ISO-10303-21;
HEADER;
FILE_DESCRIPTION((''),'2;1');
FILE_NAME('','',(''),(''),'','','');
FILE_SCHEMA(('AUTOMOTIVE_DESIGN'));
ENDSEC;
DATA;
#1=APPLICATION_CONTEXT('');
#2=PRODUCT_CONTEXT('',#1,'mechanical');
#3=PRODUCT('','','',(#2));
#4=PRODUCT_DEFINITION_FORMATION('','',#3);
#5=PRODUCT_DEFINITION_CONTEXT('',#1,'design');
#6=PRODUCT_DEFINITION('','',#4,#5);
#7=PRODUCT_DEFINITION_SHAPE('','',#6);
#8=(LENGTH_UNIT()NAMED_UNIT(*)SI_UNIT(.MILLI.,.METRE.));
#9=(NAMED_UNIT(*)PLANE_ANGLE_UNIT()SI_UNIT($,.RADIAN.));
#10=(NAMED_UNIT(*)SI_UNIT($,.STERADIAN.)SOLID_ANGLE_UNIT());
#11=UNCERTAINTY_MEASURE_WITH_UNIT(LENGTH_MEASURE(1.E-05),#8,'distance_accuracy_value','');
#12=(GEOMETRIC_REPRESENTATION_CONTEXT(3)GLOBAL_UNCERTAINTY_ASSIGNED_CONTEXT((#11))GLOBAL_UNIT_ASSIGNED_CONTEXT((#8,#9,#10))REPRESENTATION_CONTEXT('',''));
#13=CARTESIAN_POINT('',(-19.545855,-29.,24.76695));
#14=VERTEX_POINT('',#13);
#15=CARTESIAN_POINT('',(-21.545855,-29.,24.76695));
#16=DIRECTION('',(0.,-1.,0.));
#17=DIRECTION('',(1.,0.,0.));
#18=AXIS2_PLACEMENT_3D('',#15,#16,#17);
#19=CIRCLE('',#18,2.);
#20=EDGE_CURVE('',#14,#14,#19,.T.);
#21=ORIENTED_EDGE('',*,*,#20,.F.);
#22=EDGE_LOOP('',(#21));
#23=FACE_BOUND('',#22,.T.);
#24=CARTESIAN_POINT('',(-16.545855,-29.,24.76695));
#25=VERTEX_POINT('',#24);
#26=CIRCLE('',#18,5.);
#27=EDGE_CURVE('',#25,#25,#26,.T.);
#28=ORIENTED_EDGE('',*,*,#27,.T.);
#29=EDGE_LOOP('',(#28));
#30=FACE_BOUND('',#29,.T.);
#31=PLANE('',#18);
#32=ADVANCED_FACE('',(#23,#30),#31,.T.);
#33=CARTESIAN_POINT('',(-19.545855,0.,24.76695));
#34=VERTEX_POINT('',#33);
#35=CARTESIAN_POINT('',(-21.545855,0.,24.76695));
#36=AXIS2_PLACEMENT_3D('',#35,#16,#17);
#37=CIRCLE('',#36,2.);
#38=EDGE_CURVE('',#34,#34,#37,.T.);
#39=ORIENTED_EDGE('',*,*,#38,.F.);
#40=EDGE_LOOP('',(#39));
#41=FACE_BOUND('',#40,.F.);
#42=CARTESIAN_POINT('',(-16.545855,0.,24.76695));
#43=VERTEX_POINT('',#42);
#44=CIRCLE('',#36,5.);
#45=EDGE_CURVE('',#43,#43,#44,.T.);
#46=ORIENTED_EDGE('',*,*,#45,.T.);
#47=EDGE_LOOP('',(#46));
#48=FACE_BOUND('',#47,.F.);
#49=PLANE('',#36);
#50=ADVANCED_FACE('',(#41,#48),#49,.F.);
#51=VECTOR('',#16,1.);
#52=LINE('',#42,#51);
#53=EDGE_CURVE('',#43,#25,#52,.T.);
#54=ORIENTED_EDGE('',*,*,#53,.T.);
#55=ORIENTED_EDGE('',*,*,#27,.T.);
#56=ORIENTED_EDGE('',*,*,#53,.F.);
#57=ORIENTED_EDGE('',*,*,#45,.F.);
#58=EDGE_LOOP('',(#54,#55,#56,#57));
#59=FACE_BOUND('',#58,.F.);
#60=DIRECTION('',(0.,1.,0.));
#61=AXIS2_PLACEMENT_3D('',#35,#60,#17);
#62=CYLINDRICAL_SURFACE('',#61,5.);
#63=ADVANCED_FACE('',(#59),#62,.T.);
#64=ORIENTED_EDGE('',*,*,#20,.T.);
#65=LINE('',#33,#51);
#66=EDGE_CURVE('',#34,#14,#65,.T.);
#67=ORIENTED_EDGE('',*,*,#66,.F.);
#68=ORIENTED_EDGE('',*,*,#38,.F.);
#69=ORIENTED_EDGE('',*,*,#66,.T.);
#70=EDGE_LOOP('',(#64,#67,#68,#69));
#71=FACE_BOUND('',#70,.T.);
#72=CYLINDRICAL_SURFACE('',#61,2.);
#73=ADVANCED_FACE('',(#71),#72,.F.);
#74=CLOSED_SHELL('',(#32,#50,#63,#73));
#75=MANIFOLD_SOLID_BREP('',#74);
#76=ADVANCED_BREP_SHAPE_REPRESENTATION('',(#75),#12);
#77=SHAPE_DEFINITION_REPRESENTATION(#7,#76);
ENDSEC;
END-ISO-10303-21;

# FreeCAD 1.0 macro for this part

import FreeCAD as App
import Part
import Sketcher

doc = App.newDocument("Part")
body = doc.addObject("PartDesign::Body", "Body")

sketch1 = doc.addObject("Sketcher::SketchObject", "Sketch")
body.addObject(sketch1)
sketch1.AttachmentSupport = (doc.XZ_Plane, [""])
sketch1.MapMode = "FlatFace"
sketch1.addGeometry(Part.Circle(App.Vector(-21.5, 24.8, 0), App.Vector(0, 0, 1), 5), False)
sketch1.addGeometry(Part.Circle(App.Vector(-21.5, 24.8, 0), App.Vector(0, 0, 1), 2), False)
sketch1.addConstraint(Sketcher.Constraint("Coincident", 1, 3, 0, 3))
sketch1.addConstraint(Sketcher.Constraint("Diameter", 0, 10.0))
sketch1.addConstraint(Sketcher.Constraint("Diameter", 1, 4.0))
sketch1.addConstraint(Sketcher.Constraint("DistanceY", -1, 1, 0, 3, 24.76695))
sketch1.addConstraint(Sketcher.Constraint("DistanceX", 0, 3, -1, 1, 21.545855))
pad1 = doc.addObject("PartDesign::Pad", "Pad")
body.addObject(pad1)
pad1.Profile = sketch1
pad1.Length = 29
body2 = doc.addObject("PartDesign::Body", "Body001")

sketch2 = doc.addObject("Sketcher::SketchObject", "Sketch001")
body2.addObject(sketch2)
sketch2.AttachmentSupport = (doc.getObject("XZ_Plane001"), [""])
sketch2.MapMode = "FlatFace"
sketch2.addGeometry(Part.Circle(App.Vector(-21.5, 24.8, 0), App.Vector(0, 0, 1), 2), False)
sketch2.addConstraint(Sketcher.Constraint("Diameter", 0, 4.0))
sketch2.addConstraint(Sketcher.Constraint("DistanceY", -1, 1, 0, 3, 24.76695))
sketch2.addConstraint(Sketcher.Constraint("DistanceX", 0, 3, -1, 1, 21.545855))
pad2 = doc.addObject("PartDesign::Pad", "Pad001")
body2.addObject(pad2)
pad2.Profile = sketch2
pad2.Length = 4
pad2.Reversed = True
body2.Visibility = False

doc.recompute()
